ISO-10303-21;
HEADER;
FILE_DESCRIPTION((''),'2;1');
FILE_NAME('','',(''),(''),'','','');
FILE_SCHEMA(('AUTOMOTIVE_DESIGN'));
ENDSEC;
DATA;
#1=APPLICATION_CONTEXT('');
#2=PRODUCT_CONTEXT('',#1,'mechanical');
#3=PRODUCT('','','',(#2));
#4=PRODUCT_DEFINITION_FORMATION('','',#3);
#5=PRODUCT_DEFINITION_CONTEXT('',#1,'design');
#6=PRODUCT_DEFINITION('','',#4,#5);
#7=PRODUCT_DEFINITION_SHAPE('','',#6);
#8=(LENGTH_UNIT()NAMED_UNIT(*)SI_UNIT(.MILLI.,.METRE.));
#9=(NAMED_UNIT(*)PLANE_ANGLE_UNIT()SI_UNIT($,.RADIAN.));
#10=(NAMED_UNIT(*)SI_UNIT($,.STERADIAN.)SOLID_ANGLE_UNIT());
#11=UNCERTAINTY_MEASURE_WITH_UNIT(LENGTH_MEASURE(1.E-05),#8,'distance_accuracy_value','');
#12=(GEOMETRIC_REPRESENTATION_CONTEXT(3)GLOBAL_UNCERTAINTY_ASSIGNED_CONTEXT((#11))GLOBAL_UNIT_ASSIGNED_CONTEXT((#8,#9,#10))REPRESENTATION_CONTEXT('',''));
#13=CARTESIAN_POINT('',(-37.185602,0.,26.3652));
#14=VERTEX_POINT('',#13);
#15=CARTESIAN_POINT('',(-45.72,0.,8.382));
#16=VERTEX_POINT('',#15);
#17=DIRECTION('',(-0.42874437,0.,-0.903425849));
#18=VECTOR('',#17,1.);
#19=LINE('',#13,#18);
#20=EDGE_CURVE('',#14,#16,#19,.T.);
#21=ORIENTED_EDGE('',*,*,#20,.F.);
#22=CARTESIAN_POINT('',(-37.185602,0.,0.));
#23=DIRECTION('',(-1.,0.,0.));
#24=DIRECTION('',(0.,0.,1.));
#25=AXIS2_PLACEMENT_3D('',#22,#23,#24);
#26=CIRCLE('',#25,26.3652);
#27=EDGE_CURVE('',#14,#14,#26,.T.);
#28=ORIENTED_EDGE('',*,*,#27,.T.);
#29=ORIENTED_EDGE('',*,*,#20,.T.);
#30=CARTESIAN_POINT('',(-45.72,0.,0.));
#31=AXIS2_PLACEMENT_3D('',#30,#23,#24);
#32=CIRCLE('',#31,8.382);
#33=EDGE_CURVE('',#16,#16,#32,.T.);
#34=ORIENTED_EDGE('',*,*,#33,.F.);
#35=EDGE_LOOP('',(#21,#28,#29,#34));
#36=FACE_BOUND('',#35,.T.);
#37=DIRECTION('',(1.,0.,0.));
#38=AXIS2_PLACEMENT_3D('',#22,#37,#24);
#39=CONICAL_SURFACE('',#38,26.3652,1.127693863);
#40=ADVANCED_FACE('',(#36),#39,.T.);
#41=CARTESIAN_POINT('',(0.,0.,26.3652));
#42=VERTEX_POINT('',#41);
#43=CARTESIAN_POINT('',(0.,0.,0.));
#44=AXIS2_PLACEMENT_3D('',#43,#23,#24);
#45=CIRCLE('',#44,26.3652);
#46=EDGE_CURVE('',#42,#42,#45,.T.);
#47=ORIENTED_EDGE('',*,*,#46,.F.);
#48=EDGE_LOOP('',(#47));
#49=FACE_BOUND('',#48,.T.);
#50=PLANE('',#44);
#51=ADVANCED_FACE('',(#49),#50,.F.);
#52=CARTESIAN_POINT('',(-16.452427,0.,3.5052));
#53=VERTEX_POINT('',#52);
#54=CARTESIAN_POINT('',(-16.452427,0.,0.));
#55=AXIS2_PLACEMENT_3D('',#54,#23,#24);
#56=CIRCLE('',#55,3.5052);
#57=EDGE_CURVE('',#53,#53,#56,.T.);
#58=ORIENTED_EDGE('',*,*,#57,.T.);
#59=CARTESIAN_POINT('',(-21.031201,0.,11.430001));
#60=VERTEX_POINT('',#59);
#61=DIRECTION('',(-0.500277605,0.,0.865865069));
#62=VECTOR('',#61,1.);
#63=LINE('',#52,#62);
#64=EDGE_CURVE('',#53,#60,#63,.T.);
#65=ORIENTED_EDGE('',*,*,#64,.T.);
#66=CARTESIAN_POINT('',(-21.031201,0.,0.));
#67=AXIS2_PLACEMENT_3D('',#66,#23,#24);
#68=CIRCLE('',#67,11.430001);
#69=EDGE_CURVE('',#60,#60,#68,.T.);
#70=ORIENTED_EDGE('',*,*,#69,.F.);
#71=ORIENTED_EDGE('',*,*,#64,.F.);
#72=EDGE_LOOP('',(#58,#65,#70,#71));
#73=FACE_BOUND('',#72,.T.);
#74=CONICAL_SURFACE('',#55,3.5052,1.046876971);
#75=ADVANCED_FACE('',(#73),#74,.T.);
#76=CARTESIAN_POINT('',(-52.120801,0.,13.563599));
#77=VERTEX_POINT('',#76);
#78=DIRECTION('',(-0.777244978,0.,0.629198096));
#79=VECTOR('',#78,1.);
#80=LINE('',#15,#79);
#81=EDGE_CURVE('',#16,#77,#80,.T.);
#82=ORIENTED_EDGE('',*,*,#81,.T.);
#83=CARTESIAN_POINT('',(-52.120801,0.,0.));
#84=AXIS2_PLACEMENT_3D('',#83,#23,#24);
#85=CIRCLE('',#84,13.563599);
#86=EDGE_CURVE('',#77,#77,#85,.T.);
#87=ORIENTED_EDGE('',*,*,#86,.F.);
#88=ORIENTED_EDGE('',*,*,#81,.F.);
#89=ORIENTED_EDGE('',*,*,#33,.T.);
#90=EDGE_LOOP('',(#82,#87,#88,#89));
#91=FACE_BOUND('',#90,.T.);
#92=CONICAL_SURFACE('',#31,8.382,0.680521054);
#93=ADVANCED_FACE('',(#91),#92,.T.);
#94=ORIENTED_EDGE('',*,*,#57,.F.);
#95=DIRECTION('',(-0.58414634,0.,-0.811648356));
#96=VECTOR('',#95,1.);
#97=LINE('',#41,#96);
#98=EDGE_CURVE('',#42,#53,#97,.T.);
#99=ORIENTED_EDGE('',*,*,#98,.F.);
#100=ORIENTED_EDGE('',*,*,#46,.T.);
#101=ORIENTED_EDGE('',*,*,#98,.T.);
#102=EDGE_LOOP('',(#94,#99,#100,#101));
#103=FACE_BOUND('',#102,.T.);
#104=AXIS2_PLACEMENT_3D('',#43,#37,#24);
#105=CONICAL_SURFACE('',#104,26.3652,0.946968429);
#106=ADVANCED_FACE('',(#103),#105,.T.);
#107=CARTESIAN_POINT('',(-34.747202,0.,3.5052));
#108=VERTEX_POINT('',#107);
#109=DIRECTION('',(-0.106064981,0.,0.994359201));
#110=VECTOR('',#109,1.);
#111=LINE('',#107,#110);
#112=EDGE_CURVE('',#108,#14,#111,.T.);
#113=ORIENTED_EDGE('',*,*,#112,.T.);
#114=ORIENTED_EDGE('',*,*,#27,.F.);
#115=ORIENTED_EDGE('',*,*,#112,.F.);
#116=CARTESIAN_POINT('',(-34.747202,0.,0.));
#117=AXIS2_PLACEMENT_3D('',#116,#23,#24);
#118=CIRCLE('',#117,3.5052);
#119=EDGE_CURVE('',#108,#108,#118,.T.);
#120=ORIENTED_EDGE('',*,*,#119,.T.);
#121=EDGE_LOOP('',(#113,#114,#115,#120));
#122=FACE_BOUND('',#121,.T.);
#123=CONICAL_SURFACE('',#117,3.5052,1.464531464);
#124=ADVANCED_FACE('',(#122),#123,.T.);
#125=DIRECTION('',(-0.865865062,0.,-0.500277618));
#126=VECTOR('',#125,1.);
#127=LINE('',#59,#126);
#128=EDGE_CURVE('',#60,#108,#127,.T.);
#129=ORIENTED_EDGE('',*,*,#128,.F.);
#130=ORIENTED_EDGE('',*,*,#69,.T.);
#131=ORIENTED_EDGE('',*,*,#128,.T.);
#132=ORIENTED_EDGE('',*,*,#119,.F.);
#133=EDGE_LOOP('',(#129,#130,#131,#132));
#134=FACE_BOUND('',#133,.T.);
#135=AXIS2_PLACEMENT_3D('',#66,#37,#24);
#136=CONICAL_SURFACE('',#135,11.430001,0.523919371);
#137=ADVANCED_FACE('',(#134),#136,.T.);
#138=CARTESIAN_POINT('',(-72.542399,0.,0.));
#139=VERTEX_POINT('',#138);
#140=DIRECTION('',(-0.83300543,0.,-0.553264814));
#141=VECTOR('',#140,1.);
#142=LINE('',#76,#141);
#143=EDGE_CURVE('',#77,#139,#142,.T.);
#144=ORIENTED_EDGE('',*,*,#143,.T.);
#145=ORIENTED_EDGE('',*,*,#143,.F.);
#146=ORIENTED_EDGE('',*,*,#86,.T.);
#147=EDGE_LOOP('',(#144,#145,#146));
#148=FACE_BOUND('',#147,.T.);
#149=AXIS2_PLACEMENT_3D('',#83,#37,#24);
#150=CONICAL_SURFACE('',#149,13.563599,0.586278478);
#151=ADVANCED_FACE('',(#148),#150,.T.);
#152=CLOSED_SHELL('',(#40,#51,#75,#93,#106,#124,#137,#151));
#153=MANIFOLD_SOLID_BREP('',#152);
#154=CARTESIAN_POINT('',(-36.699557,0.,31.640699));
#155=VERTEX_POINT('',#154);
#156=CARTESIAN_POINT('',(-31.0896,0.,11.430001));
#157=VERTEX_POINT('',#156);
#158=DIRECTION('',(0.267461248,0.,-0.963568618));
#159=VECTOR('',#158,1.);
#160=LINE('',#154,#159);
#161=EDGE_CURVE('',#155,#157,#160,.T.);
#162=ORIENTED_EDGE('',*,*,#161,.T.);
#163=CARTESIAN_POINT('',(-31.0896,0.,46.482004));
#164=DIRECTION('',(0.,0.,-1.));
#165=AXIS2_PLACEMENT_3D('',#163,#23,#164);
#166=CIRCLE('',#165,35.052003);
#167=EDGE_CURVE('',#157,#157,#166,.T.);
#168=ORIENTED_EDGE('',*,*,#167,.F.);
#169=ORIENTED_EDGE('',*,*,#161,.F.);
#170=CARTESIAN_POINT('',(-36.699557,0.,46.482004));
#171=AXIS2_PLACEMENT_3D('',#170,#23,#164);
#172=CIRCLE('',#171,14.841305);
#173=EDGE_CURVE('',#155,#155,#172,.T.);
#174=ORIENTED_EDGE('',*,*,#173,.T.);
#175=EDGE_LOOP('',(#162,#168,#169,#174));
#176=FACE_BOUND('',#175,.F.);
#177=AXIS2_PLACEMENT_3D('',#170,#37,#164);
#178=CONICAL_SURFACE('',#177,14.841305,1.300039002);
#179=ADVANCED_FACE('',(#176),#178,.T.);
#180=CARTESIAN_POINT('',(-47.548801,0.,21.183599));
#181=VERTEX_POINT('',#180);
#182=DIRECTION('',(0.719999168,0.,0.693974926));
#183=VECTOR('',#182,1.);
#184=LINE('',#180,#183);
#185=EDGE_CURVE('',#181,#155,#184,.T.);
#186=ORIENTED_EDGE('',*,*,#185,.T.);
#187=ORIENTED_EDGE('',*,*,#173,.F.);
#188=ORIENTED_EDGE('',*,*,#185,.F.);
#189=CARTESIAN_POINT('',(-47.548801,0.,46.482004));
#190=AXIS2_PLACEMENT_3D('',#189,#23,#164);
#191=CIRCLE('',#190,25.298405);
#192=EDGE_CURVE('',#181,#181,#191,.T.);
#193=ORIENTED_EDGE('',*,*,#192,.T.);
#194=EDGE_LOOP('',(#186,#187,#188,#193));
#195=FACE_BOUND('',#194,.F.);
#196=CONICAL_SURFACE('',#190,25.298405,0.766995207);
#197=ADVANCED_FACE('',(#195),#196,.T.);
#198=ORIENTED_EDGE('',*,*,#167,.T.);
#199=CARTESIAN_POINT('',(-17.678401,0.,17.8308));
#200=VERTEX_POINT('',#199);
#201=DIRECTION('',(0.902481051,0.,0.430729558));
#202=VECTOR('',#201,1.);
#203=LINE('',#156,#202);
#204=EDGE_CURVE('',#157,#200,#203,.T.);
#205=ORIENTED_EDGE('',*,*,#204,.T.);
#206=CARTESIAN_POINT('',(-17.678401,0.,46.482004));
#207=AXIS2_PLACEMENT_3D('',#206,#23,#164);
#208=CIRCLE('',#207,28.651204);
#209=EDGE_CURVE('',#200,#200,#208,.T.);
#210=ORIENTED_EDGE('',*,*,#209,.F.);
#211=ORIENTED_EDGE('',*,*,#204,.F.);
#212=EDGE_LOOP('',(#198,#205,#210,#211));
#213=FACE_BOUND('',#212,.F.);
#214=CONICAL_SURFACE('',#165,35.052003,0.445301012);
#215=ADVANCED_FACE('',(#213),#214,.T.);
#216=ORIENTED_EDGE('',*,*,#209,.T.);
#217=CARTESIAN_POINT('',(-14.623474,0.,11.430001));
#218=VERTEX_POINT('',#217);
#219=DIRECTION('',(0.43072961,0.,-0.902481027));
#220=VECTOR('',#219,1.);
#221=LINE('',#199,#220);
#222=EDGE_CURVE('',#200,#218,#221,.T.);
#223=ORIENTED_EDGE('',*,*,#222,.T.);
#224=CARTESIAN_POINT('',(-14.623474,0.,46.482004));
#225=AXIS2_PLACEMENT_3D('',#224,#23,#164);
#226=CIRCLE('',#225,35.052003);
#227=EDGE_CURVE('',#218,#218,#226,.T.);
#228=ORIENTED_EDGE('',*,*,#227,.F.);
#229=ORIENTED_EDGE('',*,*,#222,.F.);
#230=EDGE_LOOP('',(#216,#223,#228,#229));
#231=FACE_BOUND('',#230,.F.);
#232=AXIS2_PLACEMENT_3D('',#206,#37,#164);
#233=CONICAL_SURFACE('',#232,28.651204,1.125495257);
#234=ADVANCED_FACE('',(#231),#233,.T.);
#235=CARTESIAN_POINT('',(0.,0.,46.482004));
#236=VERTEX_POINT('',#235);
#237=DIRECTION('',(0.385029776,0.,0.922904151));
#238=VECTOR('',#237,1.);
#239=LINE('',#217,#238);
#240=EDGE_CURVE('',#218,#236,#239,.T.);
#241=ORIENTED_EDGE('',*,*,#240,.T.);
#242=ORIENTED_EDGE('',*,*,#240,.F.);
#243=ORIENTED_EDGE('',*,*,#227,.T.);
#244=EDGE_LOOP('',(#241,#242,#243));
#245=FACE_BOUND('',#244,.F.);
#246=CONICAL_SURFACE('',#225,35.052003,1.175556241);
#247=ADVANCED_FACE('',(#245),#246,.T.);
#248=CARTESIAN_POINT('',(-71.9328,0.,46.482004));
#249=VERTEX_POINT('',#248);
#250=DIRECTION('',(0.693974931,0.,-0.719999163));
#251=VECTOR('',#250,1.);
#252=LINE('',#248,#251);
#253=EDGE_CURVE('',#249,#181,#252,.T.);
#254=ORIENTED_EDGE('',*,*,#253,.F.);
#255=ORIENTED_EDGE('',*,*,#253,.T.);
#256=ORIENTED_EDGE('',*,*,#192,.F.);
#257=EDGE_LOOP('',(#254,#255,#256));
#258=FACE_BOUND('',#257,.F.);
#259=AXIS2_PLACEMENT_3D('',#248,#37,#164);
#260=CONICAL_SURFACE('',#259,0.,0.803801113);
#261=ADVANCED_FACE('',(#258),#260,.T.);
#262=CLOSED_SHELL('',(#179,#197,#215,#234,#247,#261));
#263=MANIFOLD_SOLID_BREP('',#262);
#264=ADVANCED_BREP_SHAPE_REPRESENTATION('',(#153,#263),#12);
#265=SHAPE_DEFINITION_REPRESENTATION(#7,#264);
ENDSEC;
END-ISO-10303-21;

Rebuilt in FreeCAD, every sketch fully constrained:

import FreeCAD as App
import Part
import Sketcher
Q = App.Units.Quantity

doc = App.newDocument("Part")
body = doc.addObject("PartDesign::Body", "Body")

sketch1 = doc.addObject("Sketcher::SketchObject", "Sketch")
body.addObject(sketch1)
sketch1.AttachmentSupport = (doc.XZ_Plane, [""])
sketch1.MapMode = "FlatFace"
sketch1.addGeometry([
    Part.LineSegment(App.Vector(-14.623474, 11.430001, 0), App.Vector(0, 46.482004, 0)),
    Part.LineSegment(App.Vector(0, 46.482004, 0), App.Vector(-71.9328, 46.482004, 0)),
    Part.LineSegment(App.Vector(-71.9328, 46.482004, 0), App.Vector(-47.548801, 21.183599, 0)),
    Part.LineSegment(App.Vector(-47.548801, 21.183599, 0), App.Vector(-36.699557, 31.640699, 0)),
    Part.LineSegment(App.Vector(-36.699557, 31.640699, 0), App.Vector(-31.0896, 11.430001, 0)),
    Part.LineSegment(App.Vector(-31.0896, 11.430001, 0), App.Vector(-17.678401, 17.8308, 0)),
    Part.LineSegment(App.Vector(-17.678401, 17.8308, 0), App.Vector(-14.623474, 11.430001, 0)),
], False)
sketch1.addGeometry(Part.LineSegment(App.Vector(0, 46.482004, 0), App.Vector(-71.9328, 46.482004, 0)), True)
sketch1.addConstraint([
    Sketcher.Constraint("Coincident", 0, 2, 1, 1),
    Sketcher.Constraint("Coincident", 1, 2, 2, 1),
    Sketcher.Constraint("Coincident", 2, 2, 3, 1),
    Sketcher.Constraint("Coincident", 3, 2, 4, 1),
    Sketcher.Constraint("Coincident", 4, 2, 5, 1),
    Sketcher.Constraint("Coincident", 5, 2, 6, 1),
    Sketcher.Constraint("Coincident", 6, 2, 0, 1),
    Sketcher.Constraint("Horizontal", 1),
    Sketcher.Constraint("Horizontal", 7),
    Sketcher.Constraint("Coincident", 7, 1, 0, 2),
    Sketcher.Constraint("PointOnObject", 0, 2, -2),
    Sketcher.Constraint("Perpendicular", 2, 3),
    Sketcher.Constraint("Perpendicular", 5, 6),
    Sketcher.Constraint("Horizontal", 4, 2, 6, 2),
    Sketcher.Constraint("Equal", 1, 7),
    Sketcher.Constraint("DistanceX", 1, 2, 1, 1, Q("2.832 in")),
    Sketcher.Constraint("DistanceY", -1, 1, 0, 2, Q("1.8300002 in")),
    Sketcher.Constraint("DistanceY", -1, 1, 4, 2, Q("0.45 in")),
    Sketcher.Constraint("DistanceX", 1, 2, 2, 2, Q("0.96 in")),
    Sketcher.Constraint("DistanceY", -1, 1, 2, 2, Q("0.834 in")),
    Sketcher.Constraint("DistanceX", 4, 2, -1, 1, Q("1.224 in")),
    Sketcher.Constraint("DistanceX", 5, 2, -1, 1, Q("0.696 in")),
    Sketcher.Constraint("DistanceY", -1, 1, 5, 2, Q("0.702 in")),
    Sketcher.Constraint("DistanceY", -1, 1, 3, 2, Q("31.640699 mm")),
])
revolution = doc.addObject("PartDesign::Revolution", "Revolution")
body.addObject(revolution)
revolution.Profile = sketch1
revolution.ReferenceAxis = (sketch1, ["Axis0"])
revolution.Angle = 360
body2 = doc.addObject("PartDesign::Body", "Body001")

sketch2 = doc.addObject("Sketcher::SketchObject", "Sketch001")
body2.addObject(sketch2)
sketch2.AttachmentSupport = (doc.getObject("XZ_Plane001"), [""])
sketch2.MapMode = "FlatFace"
sketch2.addGeometry([
    Part.LineSegment(App.Vector(-72.542399, 0, 0), App.Vector(0, 0, 0)),
    Part.LineSegment(App.Vector(0, 0, 0), App.Vector(0, 26.3652, 0)),
    Part.LineSegment(App.Vector(0, 26.3652, 0), App.Vector(-16.452427, 3.5052, 0)),
    Part.LineSegment(App.Vector(-16.452427, 3.5052, 0), App.Vector(-21.031201, 11.430001, 0)),
    Part.LineSegment(App.Vector(-21.031201, 11.430001, 0), App.Vector(-34.747202, 3.5052, 0)),
    Part.LineSegment(App.Vector(-34.747202, 3.5052, 0), App.Vector(-37.185602, 26.3652, 0)),
    Part.LineSegment(App.Vector(-37.185602, 26.3652, 0), App.Vector(-45.72, 8.382, 0)),
    Part.LineSegment(App.Vector(-45.72, 8.382, 0), App.Vector(-52.120801, 13.563599, 0)),
    Part.LineSegment(App.Vector(-52.120801, 13.563599, 0), App.Vector(-72.542399, 0, 0)),
], False)
sketch2.addConstraint([
    Sketcher.Constraint("Coincident", 0, 2, 1, 1),
    Sketcher.Constraint("Coincident", 1, 2, 2, 1),
    Sketcher.Constraint("Coincident", 2, 2, 3, 1),
    Sketcher.Constraint("Coincident", 3, 2, 4, 1),
    Sketcher.Constraint("Coincident", 4, 2, 5, 1),
    Sketcher.Constraint("Coincident", 5, 2, 6, 1),
    Sketcher.Constraint("Coincident", 6, 2, 7, 1),
    Sketcher.Constraint("Coincident", 7, 2, 8, 1),
    Sketcher.Constraint("Coincident", 8, 2, 0, 1),
    Sketcher.Constraint("Horizontal", 0),
    Sketcher.Constraint("Vertical", 1),
    Sketcher.Constraint("Coincident", 0, 2, -1, 1),
    Sketcher.Constraint("Perpendicular", 3, 4),
    Sketcher.Constraint("Horizontal", 2, 2, 4, 2),
    Sketcher.Constraint("Horizontal", 1, 2, 5, 2),
    Sketcher.Constraint("DistanceX", 6, 2, -1, 1, Q("1.8 in")),
    Sketcher.Constraint("DistanceY", 2, 2, 1, 2, Q("0.9 in")),
    Sketcher.Constraint("DistanceX", 0, 1, 0, 2, Q("2.856 in")),
    Sketcher.Constraint("DistanceY", 1, 1, 1, 2, Q("1.038 in")),
    Sketcher.Constraint("DistanceY", -1, 1, 3, 2, Q("0.45 in")),
    Sketcher.Constraint("DistanceY", -1, 1, 6, 2, Q("0.33 in")),
    Sketcher.Constraint("DistanceX", 4, 2, 3, 2, Q("0.54 in")),
    Sketcher.Constraint("DistanceX", 3, 2, -1, 1, Q("0.828 in")),
    Sketcher.Constraint("DistanceX", 5, 2, -1, 1, Q("1.4640001 in")),
    Sketcher.Constraint("DistanceX", 7, 2, -1, 1, Q("2.052 in")),
    Sketcher.Constraint("DistanceY", -1, 1, 7, 2, Q("0.534 in")),
])
revolution2 = doc.addObject("PartDesign::Revolution", "Revolution001")
body2.addObject(revolution2)
revolution2.Profile = sketch2
revolution2.ReferenceAxis = (sketch2, ["H_Axis"])
revolution2.Angle = 360

doc.recompute()
